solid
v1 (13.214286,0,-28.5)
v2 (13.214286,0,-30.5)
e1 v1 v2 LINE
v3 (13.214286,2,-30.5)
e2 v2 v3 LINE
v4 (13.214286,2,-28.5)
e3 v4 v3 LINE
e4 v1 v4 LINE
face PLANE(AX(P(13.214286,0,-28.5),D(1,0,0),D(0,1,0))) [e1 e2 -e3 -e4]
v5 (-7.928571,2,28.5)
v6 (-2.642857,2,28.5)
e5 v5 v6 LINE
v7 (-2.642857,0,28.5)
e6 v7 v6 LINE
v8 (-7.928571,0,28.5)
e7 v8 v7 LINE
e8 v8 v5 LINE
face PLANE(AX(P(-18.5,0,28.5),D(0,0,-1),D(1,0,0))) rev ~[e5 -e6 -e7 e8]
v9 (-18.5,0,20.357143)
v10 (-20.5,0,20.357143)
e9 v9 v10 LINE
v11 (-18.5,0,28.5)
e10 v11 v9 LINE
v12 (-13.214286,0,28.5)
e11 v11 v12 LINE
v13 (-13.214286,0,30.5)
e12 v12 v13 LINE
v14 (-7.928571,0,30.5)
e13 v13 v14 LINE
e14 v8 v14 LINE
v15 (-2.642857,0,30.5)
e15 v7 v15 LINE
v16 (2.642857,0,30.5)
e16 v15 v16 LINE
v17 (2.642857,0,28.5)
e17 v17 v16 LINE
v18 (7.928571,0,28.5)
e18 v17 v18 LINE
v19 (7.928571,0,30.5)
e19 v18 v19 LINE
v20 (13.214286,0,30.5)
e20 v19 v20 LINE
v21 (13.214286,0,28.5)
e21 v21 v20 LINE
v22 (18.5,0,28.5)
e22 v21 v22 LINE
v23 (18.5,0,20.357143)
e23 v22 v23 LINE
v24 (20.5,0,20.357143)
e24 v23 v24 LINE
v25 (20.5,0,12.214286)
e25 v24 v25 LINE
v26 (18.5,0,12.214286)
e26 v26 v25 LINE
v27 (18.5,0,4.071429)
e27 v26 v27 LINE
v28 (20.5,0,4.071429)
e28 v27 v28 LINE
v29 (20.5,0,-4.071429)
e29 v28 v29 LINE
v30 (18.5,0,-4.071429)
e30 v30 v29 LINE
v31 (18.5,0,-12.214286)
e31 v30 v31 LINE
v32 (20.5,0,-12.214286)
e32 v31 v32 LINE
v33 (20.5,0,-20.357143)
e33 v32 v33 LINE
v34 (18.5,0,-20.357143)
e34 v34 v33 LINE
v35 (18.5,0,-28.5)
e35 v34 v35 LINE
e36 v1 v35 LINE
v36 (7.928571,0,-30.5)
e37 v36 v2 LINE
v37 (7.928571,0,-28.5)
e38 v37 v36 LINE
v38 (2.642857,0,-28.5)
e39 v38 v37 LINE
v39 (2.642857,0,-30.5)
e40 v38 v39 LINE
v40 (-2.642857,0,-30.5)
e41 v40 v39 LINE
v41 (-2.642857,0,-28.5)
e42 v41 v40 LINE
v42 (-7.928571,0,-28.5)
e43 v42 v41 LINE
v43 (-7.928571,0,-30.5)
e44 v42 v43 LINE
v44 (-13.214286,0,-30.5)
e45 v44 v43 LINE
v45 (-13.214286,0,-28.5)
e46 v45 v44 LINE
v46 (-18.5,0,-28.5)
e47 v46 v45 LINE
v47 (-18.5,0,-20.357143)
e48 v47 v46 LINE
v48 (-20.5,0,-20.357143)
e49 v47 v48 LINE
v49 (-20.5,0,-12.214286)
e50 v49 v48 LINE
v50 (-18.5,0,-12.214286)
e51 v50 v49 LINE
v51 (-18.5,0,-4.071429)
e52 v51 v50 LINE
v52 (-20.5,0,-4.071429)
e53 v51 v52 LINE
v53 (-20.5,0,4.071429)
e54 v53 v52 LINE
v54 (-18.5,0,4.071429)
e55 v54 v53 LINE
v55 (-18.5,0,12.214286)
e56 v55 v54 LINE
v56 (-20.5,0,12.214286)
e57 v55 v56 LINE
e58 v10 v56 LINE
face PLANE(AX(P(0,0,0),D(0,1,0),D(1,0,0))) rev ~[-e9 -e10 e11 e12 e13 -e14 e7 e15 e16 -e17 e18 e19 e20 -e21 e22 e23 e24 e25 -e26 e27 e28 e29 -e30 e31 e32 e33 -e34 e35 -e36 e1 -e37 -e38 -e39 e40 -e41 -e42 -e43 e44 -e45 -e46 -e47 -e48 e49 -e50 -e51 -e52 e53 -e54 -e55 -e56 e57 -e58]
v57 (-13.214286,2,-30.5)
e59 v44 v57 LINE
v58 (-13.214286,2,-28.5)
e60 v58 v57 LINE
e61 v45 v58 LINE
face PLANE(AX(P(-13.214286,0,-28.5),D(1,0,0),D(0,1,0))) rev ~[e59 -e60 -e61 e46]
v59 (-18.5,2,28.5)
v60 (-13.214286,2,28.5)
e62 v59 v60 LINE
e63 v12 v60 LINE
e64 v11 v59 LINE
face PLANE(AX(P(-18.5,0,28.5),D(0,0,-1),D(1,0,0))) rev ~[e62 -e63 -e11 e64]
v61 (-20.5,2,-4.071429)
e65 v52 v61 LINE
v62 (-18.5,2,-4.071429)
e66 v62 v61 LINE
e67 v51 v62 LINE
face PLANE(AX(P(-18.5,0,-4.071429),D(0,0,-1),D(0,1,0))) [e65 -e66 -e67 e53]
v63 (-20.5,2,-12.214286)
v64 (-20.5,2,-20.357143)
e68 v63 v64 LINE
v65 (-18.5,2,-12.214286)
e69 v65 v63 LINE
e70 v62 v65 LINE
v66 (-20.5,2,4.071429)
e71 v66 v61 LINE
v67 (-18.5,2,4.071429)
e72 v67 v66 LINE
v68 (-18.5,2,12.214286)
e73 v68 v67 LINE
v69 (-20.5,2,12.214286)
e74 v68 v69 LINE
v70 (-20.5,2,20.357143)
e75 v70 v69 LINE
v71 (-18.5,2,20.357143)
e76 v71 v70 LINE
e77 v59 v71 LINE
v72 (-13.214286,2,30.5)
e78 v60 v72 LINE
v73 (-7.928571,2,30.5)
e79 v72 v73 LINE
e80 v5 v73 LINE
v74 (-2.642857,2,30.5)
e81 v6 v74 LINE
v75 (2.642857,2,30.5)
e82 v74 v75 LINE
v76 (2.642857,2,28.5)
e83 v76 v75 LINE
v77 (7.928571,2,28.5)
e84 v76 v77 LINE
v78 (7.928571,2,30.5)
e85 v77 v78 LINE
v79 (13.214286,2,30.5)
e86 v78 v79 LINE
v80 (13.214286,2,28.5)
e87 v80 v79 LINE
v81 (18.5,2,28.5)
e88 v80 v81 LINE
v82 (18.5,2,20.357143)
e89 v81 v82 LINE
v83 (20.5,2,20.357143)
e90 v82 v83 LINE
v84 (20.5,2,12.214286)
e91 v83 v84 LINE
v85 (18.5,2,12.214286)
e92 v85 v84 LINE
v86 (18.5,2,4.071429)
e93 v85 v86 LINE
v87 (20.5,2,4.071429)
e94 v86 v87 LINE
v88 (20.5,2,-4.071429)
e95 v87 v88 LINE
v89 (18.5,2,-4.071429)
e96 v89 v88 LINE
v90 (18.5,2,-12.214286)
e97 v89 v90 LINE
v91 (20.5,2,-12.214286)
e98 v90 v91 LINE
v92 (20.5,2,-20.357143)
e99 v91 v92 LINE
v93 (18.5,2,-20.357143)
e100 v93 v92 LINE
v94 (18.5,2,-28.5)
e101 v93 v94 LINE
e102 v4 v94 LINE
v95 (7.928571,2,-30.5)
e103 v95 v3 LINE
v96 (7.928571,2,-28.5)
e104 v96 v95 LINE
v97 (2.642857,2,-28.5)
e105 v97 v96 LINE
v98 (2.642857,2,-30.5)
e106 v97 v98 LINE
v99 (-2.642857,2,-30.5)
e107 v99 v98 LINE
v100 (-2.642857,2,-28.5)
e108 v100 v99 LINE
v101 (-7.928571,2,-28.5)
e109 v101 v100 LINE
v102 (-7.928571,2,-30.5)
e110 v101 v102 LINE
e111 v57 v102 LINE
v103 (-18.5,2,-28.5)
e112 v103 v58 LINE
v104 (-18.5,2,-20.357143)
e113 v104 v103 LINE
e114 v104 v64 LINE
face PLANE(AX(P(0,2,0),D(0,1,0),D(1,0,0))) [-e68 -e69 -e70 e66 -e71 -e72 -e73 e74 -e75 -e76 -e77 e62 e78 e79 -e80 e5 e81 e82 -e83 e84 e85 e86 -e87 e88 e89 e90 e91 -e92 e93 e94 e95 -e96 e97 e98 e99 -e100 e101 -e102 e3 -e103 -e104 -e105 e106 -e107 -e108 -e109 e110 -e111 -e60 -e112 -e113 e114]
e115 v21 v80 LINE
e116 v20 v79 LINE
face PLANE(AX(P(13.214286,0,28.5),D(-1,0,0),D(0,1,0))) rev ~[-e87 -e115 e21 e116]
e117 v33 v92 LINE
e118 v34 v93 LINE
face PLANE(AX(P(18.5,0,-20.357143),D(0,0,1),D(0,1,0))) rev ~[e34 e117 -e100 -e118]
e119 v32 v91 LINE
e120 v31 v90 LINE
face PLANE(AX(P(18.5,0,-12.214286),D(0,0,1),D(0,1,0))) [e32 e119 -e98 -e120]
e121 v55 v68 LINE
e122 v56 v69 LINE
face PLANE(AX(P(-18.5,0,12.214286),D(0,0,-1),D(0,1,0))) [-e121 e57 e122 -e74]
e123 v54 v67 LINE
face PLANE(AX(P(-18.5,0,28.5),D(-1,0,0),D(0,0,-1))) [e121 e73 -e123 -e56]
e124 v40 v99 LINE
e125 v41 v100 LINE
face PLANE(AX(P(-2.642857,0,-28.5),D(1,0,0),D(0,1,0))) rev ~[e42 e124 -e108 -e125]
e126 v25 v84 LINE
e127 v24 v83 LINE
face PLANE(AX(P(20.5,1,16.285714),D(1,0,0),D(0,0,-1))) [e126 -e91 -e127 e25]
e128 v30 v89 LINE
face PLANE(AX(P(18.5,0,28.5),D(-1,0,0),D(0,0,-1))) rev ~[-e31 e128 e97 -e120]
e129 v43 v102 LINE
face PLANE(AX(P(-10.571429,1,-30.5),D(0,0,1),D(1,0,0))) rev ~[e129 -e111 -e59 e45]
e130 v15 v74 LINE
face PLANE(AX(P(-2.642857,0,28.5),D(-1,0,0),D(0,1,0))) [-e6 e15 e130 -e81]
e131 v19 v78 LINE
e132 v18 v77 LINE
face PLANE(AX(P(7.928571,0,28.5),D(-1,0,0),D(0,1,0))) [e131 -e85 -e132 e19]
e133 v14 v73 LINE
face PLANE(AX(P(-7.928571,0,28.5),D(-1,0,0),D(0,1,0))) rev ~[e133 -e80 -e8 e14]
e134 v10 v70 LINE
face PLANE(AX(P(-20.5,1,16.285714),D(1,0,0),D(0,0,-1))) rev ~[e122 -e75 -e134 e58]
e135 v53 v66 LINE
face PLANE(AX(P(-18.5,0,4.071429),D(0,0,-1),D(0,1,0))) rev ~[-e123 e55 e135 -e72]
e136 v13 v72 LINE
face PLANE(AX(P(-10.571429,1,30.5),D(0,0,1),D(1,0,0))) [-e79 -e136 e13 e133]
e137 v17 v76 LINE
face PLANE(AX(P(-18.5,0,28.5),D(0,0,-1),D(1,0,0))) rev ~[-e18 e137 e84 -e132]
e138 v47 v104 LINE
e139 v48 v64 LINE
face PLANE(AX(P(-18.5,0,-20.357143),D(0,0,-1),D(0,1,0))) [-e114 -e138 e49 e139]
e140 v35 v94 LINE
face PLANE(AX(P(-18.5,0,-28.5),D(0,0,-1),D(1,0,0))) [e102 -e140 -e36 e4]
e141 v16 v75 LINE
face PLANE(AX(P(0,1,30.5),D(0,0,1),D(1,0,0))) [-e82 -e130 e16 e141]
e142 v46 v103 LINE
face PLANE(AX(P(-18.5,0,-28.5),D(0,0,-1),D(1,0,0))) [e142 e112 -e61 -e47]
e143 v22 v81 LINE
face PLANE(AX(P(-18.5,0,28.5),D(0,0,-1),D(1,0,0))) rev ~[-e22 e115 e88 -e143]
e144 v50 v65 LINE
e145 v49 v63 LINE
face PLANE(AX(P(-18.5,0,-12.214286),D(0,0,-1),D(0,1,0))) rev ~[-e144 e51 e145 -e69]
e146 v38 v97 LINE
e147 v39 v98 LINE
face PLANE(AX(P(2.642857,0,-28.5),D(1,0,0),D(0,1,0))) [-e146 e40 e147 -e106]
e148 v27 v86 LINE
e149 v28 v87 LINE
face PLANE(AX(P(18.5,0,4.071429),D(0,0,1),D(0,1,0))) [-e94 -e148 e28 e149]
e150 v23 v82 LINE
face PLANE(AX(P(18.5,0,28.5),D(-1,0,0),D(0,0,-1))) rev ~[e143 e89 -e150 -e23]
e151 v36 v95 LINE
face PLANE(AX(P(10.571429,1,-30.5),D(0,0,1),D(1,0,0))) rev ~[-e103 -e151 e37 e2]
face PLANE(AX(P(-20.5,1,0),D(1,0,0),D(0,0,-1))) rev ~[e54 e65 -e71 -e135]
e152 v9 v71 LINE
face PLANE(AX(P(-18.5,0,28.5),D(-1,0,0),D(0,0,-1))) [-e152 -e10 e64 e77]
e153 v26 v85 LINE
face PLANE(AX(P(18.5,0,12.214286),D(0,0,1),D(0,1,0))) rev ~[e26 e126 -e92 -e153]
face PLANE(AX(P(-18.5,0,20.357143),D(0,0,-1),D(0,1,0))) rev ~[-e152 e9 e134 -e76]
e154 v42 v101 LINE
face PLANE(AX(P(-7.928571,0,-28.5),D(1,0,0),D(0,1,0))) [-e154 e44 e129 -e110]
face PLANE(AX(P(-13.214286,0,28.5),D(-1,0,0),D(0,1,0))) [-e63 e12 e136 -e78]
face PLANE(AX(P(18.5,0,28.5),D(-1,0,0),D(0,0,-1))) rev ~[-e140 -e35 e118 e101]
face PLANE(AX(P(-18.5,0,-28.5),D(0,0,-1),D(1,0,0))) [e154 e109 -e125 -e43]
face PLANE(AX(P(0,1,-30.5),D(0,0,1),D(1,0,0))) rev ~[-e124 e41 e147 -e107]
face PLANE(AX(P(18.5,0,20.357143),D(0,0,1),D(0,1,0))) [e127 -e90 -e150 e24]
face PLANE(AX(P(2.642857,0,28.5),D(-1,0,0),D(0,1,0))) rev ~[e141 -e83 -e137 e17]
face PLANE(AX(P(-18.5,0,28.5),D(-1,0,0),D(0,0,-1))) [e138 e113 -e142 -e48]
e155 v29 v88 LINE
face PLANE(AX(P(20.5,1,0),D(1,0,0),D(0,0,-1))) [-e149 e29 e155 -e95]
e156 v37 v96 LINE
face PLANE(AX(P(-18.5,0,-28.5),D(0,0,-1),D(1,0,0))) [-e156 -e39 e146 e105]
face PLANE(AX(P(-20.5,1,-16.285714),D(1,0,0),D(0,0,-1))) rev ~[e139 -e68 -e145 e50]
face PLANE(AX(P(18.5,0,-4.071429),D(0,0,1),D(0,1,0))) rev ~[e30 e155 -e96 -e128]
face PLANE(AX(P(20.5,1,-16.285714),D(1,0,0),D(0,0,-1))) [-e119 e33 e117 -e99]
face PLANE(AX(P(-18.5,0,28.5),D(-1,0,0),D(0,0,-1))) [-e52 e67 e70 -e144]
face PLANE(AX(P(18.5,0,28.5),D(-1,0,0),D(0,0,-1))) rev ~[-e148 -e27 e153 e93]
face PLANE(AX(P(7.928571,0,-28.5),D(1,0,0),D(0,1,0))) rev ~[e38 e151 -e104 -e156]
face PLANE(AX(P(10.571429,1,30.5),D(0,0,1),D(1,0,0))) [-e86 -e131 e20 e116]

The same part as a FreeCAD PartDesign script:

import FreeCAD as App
import Part
import Sketcher


def add_polygon(sketch, points):
    """Adds a closed chain of lines whose ends are joined by coincident constraints."""
    first, n = sketch.GeometryCount, len(points)
    for a, b in zip(points, points[1:] + points[:1]):
        sketch.addGeometry(Part.LineSegment(App.Vector(*a, 0), App.Vector(*b, 0)), False)
    for i in range(n):
        sketch.addConstraint(Sketcher.Constraint("Coincident", first + i, 2, first + (i + 1) % n, 1))

doc = App.newDocument("Part")
body = doc.addObject("PartDesign::Body", "Body")

sketch1 = body.newObject("Sketcher::SketchObject", "Sketch")
sketch1.AttachmentSupport = (doc.getObject("XZ_Plane"), [""])
sketch1.MapMode = "FlatFace"
add_polygon(sketch1, [(-18, -28), (-18, 28), (18, 28), (18, -28)])
sketch1.addConstraint(Sketcher.Constraint("Vertical", 0))
sketch1.addConstraint(Sketcher.Constraint("Horizontal", 1))
sketch1.addConstraint(Sketcher.Constraint("Vertical", 2))
sketch1.addConstraint(Sketcher.Constraint("Horizontal", 3))
sketch1.addConstraint(Sketcher.Constraint("Symmetric", 0, 2, 2, 2, -1, 1))
sketch1.addConstraint(Sketcher.Constraint("DistanceX", 1, 1, 1, 2, 37.0))
sketch1.addConstraint(Sketcher.Constraint("DistanceY", 0, 1, 0, 2, 57.0))
pad1 = body.newObject("PartDesign::Pad", "Pad")
pad1.Profile = sketch1
pad1.Length = 2
pad1.Reversed = True

sketch2 = body.newObject("Sketcher::SketchObject", "Sketch001")
sketch2.AttachmentSupport = (doc.getObject("XY_Plane"), [""])
sketch2.MapMode = "FlatFace"
sketch2.AttachmentOffset = App.Placement(App.Vector(0, 0, 28.5), App.Rotation())
add_polygon(sketch2, [(7.9, 2), (7.9, 0), (13.2, 0), (13.2, 2)])
add_polygon(sketch2, [(-2.6, 2), (-2.6, 0), (2.6, 0), (2.6, 2)])
add_polygon(sketch2, [(-13.2, 2), (-13.2, 0), (-7.9, 0), (-7.9, 2)])
sketch2.addConstraint(Sketcher.Constraint("Vertical", 0))
sketch2.addConstraint(Sketcher.Constraint("Horizontal", 1))
sketch2.addConstraint(Sketcher.Constraint("Vertical", 2))
sketch2.addConstraint(Sketcher.Constraint("Horizontal", 3))
sketch2.addConstraint(Sketcher.Constraint("Vertical", 4))
sketch2.addConstraint(Sketcher.Constraint("Horizontal", 5))
sketch2.addConstraint(Sketcher.Constraint("Vertical", 6))
sketch2.addConstraint(Sketcher.Constraint("Horizontal", 7))
sketch2.addConstraint(Sketcher.Constraint("Vertical", 8))
sketch2.addConstraint(Sketcher.Constraint("Horizontal", 9))
sketch2.addConstraint(Sketcher.Constraint("Vertical", 10))
sketch2.addConstraint(Sketcher.Constraint("Horizontal", 11))
sketch2.addConstraint(Sketcher.Constraint("Symmetric", 4, 2, 5, 2, -1, 1))
sketch2.addConstraint(Sketcher.Constraint("Symmetric", 1, 2, 8, 2, -1, 1))
sketch2.addConstraint(Sketcher.Constraint("Symmetric", 0, 2, 9, 2, -2))
sketch2.addConstraint(Sketcher.Constraint("Horizontal", 3, 2, 6, 2))
sketch2.addConstraint(Sketcher.Constraint("Horizontal", 7, 2, 10, 2))
sketch2.addConstraint(Sketcher.Constraint("Equal", 3, 5))
sketch2.addConstraint(Sketcher.Constraint("DistanceY", 0, 2, 0, 1, 2.0))
sketch2.addConstraint(Sketcher.Constraint("DistanceX", 1, 1, 1, 2, 5.285714))
sketch2.addConstraint(Sketcher.Constraint("DistanceX", -1, 1, 0, 2, 7.928571))
pad2 = body.newObject("PartDesign::Pad", "Pad001")
pad2.Profile = sketch2
pad2.Length = 2

sketch3 = body.newObject("Sketcher::SketchObject", "Sketch002")
sketch3.AttachmentSupport = (doc.getObject("XY_Plane"), [""])
sketch3.MapMode = "FlatFace"
sketch3.AttachmentOffset = App.Placement(App.Vector(0, 0, -28.5), App.Rotation())
add_polygon(sketch3, [(7.9, 2), (7.9, 0), (13.2, 0), (13.2, 2)])
add_polygon(sketch3, [(-2.6, 2), (-2.6, 0), (2.6, 0), (2.6, 2)])
add_polygon(sketch3, [(-13.2, 2), (-13.2, 0), (-7.9, 0), (-7.9, 2)])
sketch3.addConstraint(Sketcher.Constraint("Vertical", 0))
sketch3.addConstraint(Sketcher.Constraint("Horizontal", 1))
sketch3.addConstraint(Sketcher.Constraint("Vertical", 2))
sketch3.addConstraint(Sketcher.Constraint("Horizontal", 3))
sketch3.addConstraint(Sketcher.Constraint("Vertical", 4))
sketch3.addConstraint(Sketcher.Constraint("Horizontal", 5))
sketch3.addConstraint(Sketcher.Constraint("Vertical", 6))
sketch3.addConstraint(Sketcher.Constraint("Horizontal", 7))
sketch3.addConstraint(Sketcher.Constraint("Vertical", 8))
sketch3.addConstraint(Sketcher.Constraint("Horizontal", 9))
sketch3.addConstraint(Sketcher.Constraint("Vertical", 10))
sketch3.addConstraint(Sketcher.Constraint("Horizontal", 11))
sketch3.addConstraint(Sketcher.Constraint("Symmetric", 4, 2, 5, 2, -1, 1))
sketch3.addConstraint(Sketcher.Constraint("Symmetric", 1, 2, 8, 2, -1, 1))
sketch3.addConstraint(Sketcher.Constraint("Symmetric", 0, 2, 9, 2, -2))
sketch3.addConstraint(Sketcher.Constraint("Horizontal", 3, 2, 6, 2))
sketch3.addConstraint(Sketcher.Constraint("Horizontal", 7, 2, 10, 2))
sketch3.addConstraint(Sketcher.Constraint("Equal", 3, 5))
sketch3.addConstraint(Sketcher.Constraint("DistanceY", 0, 2, 0, 1, 2.0))
sketch3.addConstraint(Sketcher.Constraint("DistanceX", 1, 1, 1, 2, 5.285714))
sketch3.addConstraint(Sketcher.Constraint("DistanceX", -1, 1, 0, 2, 7.928571))
pad3 = body.newObject("PartDesign::Pad", "Pad002")
pad3.Profile = sketch3
pad3.Length = 2
pad3.Reversed = True

sketch4 = body.newObject("Sketcher::SketchObject", "Sketch003")
sketch4.AttachmentSupport = (doc.getObject("YZ_Plane"), [""])
sketch4.MapMode = "FlatFace"
sketch4.AttachmentOffset = App.Placement(App.Vector(0, 0, 18.5), App.Rotation())
add_polygon(sketch4, [(2, 20.4), (0, 20.4), (0, 12.2), (2, 12.2)])
add_polygon(sketch4, [(2, 4.1), (0, 4.1), (0, -4.1), (2, -4.1)])
add_polygon(sketch4, [(2, -12.2), (0, -12.2), (0, -20.4), (2, -20.4)])
sketch4.addConstraint(Sketcher.Constraint("Horizontal", 0))
sketch4.addConstraint(Sketcher.Constraint("Vertical", 1))
sketch4.addConstraint(Sketcher.Constraint("Horizontal", 2))
sketch4.addConstraint(Sketcher.Constraint("Vertical", 3))
sketch4.addConstraint(Sketcher.Constraint("Horizontal", 4))
sketch4.addConstraint(Sketcher.Constraint("Vertical", 5))
sketch4.addConstraint(Sketcher.Constraint("Horizontal", 6))
sketch4.addConstraint(Sketcher.Constraint("Vertical", 7))
sketch4.addConstraint(Sketcher.Constraint("Horizontal", 8))
sketch4.addConstraint(Sketcher.Constraint("Vertical", 9))
sketch4.addConstraint(Sketcher.Constraint("Horizontal", 10))
sketch4.addConstraint(Sketcher.Constraint("Vertical", 11))
sketch4.addConstraint(Sketcher.Constraint("Symmetric", 4, 2, 5, 2, -1, 1))
sketch4.addConstraint(Sketcher.Constraint("Symmetric", 1, 2, 8, 2, -1, 1))
sketch4.addConstraint(Sketcher.Constraint("Symmetric", 0, 2, 9, 2, -1))
sketch4.addConstraint(Sketcher.Constraint("Vertical", 3, 2, 6, 2))
sketch4.addConstraint(Sketcher.Constraint("Vertical", 7, 2, 10, 2))
sketch4.addConstraint(Sketcher.Constraint("Equal", 3, 5))
sketch4.addConstraint(Sketcher.Constraint("DistanceX", 0, 2, 0, 1, 2.0))
sketch4.addConstraint(Sketcher.Constraint("DistanceY", 1, 2, 1, 1, 8.142857))
sketch4.addConstraint(Sketcher.Constraint("DistanceY", 5, 2, 0, 2, 24.428571))
pad4 = body.newObject("PartDesign::Pad", "Pad003")
pad4.Profile = sketch4
pad4.Length = 2

sketch5 = body.newObject("Sketcher::SketchObject", "Sketch004")
sketch5.AttachmentSupport = (doc.getObject("YZ_Plane"), [""])
sketch5.MapMode = "FlatFace"
sketch5.AttachmentOffset = App.Placement(App.Vector(0, 0, -18.5), App.Rotation())
add_polygon(sketch5, [(2, 20.4), (0, 20.4), (0, 12.2), (2, 12.2)])
add_polygon(sketch5, [(2, 4.1), (0, 4.1), (0, -4.1), (2, -4.1)])
add_polygon(sketch5, [(2, -12.2), (0, -12.2), (0, -20.4), (2, -20.4)])
sketch5.addConstraint(Sketcher.Constraint("Horizontal", 0))
sketch5.addConstraint(Sketcher.Constraint("Vertical", 1))
sketch5.addConstraint(Sketcher.Constraint("Horizontal", 2))
sketch5.addConstraint(Sketcher.Constraint("Vertical", 3))
sketch5.addConstraint(Sketcher.Constraint("Horizontal", 4))
sketch5.addConstraint(Sketcher.Constraint("Vertical", 5))
sketch5.addConstraint(Sketcher.Constraint("Horizontal", 6))
sketch5.addConstraint(Sketcher.Constraint("Vertical", 7))
sketch5.addConstraint(Sketcher.Constraint("Horizontal", 8))
sketch5.addConstraint(Sketcher.Constraint("Vertical", 9))
sketch5.addConstraint(Sketcher.Constraint("Horizontal", 10))
sketch5.addConstraint(Sketcher.Constraint("Vertical", 11))
sketch5.addConstraint(Sketcher.Constraint("Symmetric", 4, 2, 5, 2, -1, 1))
sketch5.addConstraint(Sketcher.Constraint("Symmetric", 1, 2, 8, 2, -1, 1))
sketch5.addConstraint(Sketcher.Constraint("Symmetric", 0, 2, 9, 2, -1))
sketch5.addConstraint(Sketcher.Constraint("Vertical", 3, 2, 6, 2))
sketch5.addConstraint(Sketcher.Constraint("Vertical", 7, 2, 10, 2))
sketch5.addConstraint(Sketcher.Constraint("Equal", 3, 5))
sketch5.addConstraint(Sketcher.Constraint("DistanceX", 0, 2, 0, 1, 2.0))
sketch5.addConstraint(Sketcher.Constraint("DistanceY", 1, 2, 1, 1, 8.142857))
sketch5.addConstraint(Sketcher.Constraint("DistanceY", 5, 2, 0, 2, 24.428571))
pad5 = body.newObject("PartDesign::Pad", "Pad004")
pad5.Profile = sketch5
pad5.Length = 2
pad5.Reversed = True

doc.recompute()
